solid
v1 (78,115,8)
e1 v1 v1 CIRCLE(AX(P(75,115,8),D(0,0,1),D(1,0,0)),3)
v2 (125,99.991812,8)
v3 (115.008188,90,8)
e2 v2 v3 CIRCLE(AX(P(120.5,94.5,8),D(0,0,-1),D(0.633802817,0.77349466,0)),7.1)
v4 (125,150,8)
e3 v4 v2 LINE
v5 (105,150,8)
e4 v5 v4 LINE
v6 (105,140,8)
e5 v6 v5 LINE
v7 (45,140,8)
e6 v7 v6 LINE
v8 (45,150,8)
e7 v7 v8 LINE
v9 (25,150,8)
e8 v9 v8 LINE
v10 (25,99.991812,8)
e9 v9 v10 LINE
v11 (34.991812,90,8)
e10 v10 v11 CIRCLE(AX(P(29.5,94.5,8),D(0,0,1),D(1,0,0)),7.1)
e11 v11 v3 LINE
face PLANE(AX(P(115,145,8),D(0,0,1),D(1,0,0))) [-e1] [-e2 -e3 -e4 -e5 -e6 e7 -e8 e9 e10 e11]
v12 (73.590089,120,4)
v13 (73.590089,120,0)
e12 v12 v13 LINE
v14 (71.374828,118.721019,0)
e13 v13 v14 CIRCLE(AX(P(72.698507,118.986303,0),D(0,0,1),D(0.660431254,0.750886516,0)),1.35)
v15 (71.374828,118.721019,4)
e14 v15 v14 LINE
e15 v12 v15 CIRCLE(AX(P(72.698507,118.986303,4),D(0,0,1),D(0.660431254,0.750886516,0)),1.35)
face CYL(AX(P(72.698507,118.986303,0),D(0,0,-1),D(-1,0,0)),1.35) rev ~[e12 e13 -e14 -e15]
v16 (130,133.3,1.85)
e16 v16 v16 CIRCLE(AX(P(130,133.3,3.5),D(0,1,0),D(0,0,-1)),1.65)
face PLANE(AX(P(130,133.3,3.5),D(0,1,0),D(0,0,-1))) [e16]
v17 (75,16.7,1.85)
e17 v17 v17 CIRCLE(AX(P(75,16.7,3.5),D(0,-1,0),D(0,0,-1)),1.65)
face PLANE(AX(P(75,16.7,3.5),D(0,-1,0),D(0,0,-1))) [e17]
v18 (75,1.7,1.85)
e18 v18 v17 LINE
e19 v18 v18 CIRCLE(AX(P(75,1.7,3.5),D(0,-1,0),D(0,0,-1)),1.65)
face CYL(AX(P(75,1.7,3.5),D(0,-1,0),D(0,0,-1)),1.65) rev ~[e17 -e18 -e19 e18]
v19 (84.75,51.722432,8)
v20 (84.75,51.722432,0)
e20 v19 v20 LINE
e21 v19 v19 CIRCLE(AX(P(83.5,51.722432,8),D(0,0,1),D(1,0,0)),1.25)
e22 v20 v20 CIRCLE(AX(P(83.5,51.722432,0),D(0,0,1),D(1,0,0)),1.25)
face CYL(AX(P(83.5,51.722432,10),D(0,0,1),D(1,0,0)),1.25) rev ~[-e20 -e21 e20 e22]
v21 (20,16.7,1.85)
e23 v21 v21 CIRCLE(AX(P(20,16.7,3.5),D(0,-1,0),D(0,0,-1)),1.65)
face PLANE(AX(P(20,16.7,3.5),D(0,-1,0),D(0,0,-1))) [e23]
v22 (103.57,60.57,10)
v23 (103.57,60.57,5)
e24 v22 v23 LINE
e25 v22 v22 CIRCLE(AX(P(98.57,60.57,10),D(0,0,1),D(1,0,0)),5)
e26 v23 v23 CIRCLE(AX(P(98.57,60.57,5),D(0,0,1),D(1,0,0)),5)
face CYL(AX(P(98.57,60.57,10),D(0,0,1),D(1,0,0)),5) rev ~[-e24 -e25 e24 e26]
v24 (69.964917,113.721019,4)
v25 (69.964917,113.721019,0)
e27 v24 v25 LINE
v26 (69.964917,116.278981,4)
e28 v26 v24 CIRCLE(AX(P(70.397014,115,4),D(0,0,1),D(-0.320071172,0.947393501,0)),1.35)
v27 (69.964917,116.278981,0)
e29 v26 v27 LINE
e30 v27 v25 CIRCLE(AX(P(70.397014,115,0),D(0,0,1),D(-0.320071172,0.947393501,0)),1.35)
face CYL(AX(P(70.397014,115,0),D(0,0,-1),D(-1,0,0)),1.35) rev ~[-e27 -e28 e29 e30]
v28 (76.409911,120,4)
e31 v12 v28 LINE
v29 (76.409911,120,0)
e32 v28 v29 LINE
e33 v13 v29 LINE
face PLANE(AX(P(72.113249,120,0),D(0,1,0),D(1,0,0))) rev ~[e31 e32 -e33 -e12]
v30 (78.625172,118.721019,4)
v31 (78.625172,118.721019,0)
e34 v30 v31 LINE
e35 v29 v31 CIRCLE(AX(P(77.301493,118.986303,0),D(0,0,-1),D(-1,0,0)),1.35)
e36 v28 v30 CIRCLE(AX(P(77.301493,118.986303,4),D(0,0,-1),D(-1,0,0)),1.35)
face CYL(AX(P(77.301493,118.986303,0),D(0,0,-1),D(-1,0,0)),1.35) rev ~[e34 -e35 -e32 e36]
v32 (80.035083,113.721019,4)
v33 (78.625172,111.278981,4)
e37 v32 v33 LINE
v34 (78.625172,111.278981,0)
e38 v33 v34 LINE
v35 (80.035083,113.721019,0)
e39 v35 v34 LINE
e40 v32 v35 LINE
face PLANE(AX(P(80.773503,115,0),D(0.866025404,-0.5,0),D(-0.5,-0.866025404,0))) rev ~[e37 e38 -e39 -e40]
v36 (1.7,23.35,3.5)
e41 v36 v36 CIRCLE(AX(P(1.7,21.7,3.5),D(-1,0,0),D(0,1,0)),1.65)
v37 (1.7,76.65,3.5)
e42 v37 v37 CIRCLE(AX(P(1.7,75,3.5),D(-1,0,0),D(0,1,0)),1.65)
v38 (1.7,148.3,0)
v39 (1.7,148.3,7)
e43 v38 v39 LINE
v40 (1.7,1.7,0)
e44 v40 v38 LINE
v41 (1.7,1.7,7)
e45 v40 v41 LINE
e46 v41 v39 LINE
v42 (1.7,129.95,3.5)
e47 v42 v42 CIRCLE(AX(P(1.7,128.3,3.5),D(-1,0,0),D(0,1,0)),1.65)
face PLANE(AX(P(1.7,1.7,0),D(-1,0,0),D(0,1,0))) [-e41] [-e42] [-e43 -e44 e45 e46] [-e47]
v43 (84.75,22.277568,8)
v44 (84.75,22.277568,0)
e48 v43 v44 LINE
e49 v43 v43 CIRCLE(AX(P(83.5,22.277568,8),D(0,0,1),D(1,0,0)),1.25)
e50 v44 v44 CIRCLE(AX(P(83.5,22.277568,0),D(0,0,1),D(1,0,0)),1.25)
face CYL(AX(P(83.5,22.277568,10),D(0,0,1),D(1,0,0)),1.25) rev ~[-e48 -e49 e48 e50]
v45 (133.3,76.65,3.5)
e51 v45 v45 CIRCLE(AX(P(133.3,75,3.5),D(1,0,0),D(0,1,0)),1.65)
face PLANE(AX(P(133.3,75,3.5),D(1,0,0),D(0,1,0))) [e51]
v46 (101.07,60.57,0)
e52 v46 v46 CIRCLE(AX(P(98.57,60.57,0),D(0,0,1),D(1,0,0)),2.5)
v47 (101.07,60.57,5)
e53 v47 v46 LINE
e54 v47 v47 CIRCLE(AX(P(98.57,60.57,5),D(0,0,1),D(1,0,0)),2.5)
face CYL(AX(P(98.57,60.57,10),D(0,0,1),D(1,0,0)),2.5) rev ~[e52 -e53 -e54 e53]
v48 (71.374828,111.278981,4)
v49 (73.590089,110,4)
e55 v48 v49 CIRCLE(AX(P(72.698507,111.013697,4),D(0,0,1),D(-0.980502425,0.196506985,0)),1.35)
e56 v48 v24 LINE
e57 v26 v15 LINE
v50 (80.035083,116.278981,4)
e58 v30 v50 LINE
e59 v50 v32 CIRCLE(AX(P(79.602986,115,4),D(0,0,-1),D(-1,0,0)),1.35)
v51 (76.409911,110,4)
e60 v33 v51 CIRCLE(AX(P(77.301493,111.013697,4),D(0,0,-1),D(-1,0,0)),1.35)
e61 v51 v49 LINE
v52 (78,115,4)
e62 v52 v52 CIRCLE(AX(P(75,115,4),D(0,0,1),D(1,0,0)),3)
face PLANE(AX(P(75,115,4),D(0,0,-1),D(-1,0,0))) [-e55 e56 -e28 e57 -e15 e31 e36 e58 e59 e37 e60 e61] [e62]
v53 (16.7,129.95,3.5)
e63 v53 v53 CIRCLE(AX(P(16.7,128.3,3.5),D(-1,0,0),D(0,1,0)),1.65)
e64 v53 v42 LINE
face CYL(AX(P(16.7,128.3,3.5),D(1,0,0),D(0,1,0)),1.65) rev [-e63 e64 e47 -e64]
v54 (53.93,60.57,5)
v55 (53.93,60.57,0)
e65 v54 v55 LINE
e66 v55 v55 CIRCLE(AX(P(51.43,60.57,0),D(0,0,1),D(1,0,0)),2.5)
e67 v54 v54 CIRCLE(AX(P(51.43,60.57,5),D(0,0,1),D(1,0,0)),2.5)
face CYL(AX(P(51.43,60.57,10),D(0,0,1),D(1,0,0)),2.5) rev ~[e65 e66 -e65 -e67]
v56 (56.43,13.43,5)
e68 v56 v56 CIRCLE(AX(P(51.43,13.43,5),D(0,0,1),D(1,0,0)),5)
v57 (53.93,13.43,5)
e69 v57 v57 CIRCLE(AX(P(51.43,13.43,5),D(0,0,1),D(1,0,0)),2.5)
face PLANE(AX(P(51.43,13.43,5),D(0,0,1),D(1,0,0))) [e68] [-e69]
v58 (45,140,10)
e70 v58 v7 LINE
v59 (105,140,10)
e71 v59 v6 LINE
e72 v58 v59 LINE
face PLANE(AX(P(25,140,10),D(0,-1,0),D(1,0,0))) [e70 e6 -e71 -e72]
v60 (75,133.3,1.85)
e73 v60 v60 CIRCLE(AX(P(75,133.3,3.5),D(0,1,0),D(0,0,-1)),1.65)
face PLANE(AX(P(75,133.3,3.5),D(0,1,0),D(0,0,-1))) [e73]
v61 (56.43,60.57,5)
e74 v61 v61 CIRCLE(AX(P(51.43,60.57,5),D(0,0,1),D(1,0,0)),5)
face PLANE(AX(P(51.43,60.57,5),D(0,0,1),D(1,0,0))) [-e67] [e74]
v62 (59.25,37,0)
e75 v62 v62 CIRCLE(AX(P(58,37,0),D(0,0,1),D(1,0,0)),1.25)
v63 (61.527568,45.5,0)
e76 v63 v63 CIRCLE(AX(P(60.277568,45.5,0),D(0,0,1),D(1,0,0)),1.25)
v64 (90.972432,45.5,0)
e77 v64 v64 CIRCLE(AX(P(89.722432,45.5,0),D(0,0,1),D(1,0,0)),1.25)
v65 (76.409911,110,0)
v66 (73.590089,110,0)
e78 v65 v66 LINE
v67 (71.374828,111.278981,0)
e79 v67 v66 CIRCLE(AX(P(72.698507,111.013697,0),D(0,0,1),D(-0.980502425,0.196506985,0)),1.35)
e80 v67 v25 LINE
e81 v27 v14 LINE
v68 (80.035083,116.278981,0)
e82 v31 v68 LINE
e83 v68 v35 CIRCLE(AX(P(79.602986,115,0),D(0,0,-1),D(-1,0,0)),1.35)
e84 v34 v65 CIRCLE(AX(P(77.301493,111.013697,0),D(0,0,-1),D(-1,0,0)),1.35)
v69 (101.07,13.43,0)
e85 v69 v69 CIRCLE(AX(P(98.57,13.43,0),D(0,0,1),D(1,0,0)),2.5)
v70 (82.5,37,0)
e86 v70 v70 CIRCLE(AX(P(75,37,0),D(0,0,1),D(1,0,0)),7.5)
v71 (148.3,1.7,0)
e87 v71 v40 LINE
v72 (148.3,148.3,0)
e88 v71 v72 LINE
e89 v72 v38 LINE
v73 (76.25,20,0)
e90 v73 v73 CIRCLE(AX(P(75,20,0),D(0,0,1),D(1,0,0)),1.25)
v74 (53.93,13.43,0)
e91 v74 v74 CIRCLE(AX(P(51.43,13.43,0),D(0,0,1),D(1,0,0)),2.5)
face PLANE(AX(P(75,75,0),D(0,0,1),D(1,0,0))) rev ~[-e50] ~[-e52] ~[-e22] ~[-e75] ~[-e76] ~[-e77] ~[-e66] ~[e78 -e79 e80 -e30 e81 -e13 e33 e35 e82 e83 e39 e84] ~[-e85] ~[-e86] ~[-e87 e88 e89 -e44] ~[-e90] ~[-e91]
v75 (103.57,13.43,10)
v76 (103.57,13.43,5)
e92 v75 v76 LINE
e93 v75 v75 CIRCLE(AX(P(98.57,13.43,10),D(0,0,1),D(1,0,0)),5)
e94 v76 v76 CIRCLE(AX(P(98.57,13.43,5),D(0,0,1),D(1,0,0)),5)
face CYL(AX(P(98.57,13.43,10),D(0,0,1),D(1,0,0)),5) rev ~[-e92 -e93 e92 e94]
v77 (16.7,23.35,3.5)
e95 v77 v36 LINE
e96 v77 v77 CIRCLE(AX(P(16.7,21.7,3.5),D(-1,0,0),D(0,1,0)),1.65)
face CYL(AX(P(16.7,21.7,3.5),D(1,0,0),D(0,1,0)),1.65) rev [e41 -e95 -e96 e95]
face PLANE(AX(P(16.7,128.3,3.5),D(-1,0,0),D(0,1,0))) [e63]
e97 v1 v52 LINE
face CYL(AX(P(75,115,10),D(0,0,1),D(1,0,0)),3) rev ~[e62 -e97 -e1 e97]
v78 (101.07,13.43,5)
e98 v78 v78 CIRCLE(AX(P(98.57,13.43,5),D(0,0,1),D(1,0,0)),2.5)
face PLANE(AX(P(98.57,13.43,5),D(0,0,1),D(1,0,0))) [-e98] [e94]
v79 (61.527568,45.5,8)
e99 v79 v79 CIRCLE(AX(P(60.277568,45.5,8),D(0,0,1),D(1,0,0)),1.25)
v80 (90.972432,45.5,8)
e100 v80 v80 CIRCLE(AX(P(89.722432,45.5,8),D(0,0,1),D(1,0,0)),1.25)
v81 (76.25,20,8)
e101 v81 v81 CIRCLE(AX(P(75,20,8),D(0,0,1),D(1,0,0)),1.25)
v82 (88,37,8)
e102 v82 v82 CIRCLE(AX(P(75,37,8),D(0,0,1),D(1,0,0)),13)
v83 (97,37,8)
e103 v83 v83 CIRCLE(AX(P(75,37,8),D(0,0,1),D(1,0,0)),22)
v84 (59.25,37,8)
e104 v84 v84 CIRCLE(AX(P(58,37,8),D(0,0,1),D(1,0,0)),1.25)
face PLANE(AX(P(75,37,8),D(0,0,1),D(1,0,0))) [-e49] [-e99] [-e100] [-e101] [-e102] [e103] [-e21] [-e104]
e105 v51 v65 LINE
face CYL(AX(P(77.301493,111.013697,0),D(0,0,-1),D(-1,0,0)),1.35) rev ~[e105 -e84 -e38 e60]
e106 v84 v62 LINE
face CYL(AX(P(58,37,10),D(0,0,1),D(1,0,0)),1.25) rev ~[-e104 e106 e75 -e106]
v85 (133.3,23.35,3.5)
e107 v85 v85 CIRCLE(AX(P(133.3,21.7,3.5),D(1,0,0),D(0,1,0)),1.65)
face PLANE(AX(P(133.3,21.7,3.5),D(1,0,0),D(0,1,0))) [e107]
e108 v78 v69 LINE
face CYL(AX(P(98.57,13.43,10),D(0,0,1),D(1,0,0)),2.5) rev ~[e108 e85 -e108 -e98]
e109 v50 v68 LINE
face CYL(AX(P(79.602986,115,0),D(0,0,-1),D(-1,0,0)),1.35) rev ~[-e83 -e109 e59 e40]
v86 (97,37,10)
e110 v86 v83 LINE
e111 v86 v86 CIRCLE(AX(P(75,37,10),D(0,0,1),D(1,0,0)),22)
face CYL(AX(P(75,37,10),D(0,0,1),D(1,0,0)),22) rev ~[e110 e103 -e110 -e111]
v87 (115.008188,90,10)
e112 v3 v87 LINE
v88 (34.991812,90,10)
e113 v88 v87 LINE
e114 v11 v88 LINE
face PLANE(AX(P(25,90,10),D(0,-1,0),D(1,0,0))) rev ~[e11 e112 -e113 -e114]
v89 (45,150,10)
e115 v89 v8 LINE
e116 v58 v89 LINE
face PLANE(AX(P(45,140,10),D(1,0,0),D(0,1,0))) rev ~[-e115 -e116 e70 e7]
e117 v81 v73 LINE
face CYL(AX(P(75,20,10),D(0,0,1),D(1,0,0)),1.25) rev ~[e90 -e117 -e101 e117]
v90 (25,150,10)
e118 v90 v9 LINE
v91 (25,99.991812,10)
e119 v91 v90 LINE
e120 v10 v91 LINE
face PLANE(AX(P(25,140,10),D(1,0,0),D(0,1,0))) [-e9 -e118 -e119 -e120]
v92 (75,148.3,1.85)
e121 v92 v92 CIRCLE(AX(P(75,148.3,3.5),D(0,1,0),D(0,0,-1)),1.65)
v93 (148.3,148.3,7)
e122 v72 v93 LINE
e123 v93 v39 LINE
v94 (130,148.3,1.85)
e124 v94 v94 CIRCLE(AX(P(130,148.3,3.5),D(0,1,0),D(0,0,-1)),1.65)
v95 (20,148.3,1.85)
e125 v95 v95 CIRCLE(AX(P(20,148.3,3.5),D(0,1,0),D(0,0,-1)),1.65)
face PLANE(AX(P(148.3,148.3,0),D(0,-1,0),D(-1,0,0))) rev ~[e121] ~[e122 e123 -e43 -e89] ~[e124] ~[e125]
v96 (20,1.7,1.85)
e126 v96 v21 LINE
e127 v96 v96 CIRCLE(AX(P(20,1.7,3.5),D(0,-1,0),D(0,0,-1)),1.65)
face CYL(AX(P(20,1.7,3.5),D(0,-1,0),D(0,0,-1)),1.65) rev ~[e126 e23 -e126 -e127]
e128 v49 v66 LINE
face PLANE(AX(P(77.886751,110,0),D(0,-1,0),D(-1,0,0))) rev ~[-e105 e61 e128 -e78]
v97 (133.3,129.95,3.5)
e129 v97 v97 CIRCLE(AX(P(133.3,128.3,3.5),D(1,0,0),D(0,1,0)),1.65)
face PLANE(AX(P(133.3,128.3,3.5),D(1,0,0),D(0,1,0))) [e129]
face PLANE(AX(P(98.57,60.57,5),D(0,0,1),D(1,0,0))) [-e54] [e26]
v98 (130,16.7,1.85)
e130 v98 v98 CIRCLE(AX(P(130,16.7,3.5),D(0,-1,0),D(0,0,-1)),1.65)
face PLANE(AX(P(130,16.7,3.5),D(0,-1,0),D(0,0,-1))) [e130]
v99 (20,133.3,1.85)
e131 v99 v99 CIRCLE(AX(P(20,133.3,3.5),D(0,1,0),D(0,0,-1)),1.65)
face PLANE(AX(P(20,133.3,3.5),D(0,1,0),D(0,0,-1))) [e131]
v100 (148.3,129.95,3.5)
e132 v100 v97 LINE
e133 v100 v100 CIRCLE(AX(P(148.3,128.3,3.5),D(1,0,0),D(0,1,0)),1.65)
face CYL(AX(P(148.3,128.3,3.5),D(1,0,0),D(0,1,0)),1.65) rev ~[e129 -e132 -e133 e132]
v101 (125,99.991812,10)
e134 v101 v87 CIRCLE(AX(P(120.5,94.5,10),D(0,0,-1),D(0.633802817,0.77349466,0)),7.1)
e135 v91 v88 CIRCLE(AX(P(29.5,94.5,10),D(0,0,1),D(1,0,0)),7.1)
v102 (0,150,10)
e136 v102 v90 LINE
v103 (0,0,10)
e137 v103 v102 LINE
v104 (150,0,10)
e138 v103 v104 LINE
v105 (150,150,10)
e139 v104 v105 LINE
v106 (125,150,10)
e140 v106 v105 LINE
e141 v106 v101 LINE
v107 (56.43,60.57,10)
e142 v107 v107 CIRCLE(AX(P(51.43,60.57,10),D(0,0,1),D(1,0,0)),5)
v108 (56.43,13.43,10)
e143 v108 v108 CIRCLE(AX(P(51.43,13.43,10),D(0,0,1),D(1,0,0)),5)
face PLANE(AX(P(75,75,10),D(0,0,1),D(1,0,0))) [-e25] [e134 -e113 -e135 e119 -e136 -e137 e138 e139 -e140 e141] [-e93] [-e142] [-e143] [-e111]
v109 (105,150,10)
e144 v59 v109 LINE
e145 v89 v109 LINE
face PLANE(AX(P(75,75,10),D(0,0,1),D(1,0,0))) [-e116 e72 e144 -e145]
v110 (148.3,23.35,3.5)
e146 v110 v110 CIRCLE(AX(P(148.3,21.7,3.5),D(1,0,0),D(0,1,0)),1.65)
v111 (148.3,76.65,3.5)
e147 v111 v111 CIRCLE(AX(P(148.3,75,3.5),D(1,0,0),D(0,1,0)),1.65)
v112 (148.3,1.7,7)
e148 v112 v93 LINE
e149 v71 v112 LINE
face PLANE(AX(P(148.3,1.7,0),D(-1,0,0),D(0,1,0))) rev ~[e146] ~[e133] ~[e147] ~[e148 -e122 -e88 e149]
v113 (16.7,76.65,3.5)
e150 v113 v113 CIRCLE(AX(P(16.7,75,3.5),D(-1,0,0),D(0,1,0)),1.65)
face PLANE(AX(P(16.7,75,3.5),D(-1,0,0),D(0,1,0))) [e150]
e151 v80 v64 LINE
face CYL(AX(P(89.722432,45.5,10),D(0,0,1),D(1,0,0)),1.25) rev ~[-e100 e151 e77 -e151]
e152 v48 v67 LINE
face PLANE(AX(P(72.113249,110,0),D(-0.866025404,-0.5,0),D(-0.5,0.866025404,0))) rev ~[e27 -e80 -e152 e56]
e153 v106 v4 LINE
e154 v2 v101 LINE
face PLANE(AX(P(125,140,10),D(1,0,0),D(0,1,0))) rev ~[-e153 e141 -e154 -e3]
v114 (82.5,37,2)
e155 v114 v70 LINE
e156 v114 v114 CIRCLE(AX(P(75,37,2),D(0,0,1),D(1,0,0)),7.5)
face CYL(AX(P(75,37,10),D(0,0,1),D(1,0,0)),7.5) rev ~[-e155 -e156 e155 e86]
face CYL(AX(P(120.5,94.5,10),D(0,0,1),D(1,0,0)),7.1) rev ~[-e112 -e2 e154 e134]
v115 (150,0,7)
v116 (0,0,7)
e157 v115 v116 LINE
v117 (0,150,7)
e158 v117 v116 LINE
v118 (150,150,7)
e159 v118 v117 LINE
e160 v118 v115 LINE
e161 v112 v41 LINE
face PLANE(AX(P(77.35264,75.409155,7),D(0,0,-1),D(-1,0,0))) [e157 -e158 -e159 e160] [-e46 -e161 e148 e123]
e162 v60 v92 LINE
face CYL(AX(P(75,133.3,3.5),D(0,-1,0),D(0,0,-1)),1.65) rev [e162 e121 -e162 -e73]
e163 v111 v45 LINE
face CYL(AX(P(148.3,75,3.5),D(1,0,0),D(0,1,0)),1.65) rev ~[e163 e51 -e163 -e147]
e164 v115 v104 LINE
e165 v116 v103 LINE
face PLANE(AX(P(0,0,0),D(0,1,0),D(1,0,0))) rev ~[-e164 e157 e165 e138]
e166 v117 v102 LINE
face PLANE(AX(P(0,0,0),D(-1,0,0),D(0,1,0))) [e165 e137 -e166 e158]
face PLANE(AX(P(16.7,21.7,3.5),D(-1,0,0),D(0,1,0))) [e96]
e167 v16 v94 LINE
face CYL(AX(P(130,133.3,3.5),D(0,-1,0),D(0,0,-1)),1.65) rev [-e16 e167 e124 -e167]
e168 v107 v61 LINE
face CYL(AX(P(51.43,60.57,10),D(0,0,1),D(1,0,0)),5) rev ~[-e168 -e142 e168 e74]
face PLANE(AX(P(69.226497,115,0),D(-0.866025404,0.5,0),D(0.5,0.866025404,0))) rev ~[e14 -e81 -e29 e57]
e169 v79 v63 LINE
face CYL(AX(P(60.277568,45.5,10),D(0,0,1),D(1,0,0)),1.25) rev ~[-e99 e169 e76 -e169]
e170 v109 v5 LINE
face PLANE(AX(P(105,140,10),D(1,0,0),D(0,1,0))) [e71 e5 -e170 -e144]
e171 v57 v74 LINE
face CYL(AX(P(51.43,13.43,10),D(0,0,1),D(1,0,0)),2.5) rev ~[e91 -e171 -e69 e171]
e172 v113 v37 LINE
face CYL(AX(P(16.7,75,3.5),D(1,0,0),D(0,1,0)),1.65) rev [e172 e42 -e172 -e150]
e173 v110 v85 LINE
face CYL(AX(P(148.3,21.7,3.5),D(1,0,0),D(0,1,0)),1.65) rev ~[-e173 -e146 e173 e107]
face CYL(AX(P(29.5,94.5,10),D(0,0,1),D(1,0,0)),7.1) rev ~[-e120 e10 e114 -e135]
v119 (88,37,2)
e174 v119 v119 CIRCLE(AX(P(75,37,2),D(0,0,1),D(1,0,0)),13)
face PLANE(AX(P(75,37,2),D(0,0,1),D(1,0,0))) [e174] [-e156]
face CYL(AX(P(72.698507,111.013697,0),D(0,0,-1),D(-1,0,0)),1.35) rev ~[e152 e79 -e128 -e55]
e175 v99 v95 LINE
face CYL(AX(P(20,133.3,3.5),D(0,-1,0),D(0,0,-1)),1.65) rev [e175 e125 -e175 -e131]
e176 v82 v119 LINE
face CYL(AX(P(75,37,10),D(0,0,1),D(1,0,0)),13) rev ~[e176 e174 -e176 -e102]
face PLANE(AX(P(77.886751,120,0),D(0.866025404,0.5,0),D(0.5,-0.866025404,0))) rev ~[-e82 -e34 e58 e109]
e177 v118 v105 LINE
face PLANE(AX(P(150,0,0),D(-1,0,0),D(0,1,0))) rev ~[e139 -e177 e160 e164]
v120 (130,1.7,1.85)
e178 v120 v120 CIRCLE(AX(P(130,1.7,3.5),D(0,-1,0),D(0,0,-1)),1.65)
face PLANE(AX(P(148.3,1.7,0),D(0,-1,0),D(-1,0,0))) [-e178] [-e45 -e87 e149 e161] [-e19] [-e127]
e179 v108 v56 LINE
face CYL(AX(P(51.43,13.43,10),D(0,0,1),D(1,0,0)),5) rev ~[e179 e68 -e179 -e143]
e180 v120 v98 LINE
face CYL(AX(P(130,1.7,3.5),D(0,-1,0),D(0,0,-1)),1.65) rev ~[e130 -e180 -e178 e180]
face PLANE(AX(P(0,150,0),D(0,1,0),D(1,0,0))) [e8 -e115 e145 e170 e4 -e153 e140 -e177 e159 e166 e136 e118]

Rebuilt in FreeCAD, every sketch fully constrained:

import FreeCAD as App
import Part
import Sketcher
from FreeCAD import Vector
Q = App.Units.Quantity


def add_polygon(sketch, points):
    """Adds a closed chain of lines whose ends are joined by coincident constraints."""
    first, n = sketch.GeometryCount, len(points)
    for a, b in zip(points, points[1:] + points[:1]):
        sketch.addGeometry(Part.LineSegment(App.Vector(*a, 0), App.Vector(*b, 0)), False)
    for i in range(n):
        sketch.addConstraint(Sketcher.Constraint("Coincident", first + i, 2, first + (i + 1) % n, 1))

doc = App.newDocument("Part")
body = doc.addObject("PartDesign::Body", "Body")

sketch1 = doc.addObject("Sketcher::SketchObject", "Sketch")
body.addObject(sketch1)
sketch1.AttachmentSupport = (doc.XY_Plane, [""])
sketch1.MapMode = "FlatFace"
add_polygon(sketch1, [(0, 150), (0, 0), (150, 0), (150, 150)])
sketch1.addConstraint(Sketcher.Constraint("Vertical", 0))
sketch1.addConstraint(Sketcher.Constraint("Horizontal", 1))
sketch1.addConstraint(Sketcher.Constraint("Vertical", 2))
sketch1.addConstraint(Sketcher.Constraint("Horizontal", 3))
sketch1.addConstraint(Sketcher.Constraint("Coincident", 0, 2, -1, 1))
sketch1.addConstraint(Sketcher.Constraint("Equal", 3, 0))
sketch1.addConstraint(Sketcher.Constraint("DistanceX", 1, 1, 1, 2, 150.0))
pad1 = doc.addObject("PartDesign::Pad", "Pad")
body.addObject(pad1)
pad1.Profile = sketch1
pad1.Length = 10

sketch2 = doc.addObject("Sketcher::SketchObject", "Sketch001")
body.addObject(sketch2)
sketch2.AttachmentSupport = (doc.XY_Plane, [""])
sketch2.MapMode = "FlatFace"
sketch2.AttachmentOffset = App.Placement(Vector(0, 0, 10), App.Rotation())
sketch2.addGeometry(Part.Circle(Vector(75, 37, 0), Vector(0, 0, 1), 13), False)
sketch2.addConstraint(Sketcher.Constraint("Diameter", 0, 26.0))
sketch2.addConstraint(Sketcher.Constraint("DistanceX", -1, 1, 0, 3, 75.0))
sketch2.addConstraint(Sketcher.Constraint("DistanceY", -1, 1, 0, 3, 37.0))
pocket1 = doc.addObject("PartDesign::Pocket", "Pocket")
body.addObject(pocket1)
pocket1.Profile = sketch2
pocket1.Length = 8

sketch3 = doc.addObject("Sketcher::SketchObject", "Sketch002")
body.addObject(sketch3)
sketch3.AttachmentSupport = (doc.XY_Plane, [""])
sketch3.MapMode = "FlatFace"
sketch3.AttachmentOffset = App.Placement(Vector(0, 0, 10), App.Rotation())
sketch3.addGeometry(Part.Circle(Vector(75, 37, 0), Vector(0, 0, 1), 8), False)
sketch3.addConstraint(Sketcher.Constraint("Diameter", 0, 15.0))
sketch3.addConstraint(Sketcher.Constraint("DistanceX", -1, 1, 0, 3, 75.0))
sketch3.addConstraint(Sketcher.Constraint("DistanceY", -1, 1, 0, 3, 37.0))
pocket2 = doc.addObject("PartDesign::Pocket", "Pocket001")
body.addObject(pocket2)
pocket2.Profile = sketch3
pocket2.Type = "ThroughAll"

sketch4 = doc.addObject("Sketcher::SketchObject", "Sketch003")
body.addObject(sketch4)
sketch4.AttachmentSupport = (doc.XY_Plane, [""])
sketch4.MapMode = "FlatFace"
sketch4.AttachmentOffset = App.Placement(Vector(0, 0, 10), App.Rotation())
sketch4.addGeometry(Part.Circle(Vector(75, 37, 0), Vector(0, 0, 1), 22), False)
sketch4.addConstraint(Sketcher.Constraint("Diameter", 0, 44.0))
sketch4.addConstraint(Sketcher.Constraint("DistanceX", -1, 1, 0, 3, 75.0))
sketch4.addConstraint(Sketcher.Constraint("DistanceY", -1, 1, 0, 3, 37.0))
pocket3 = doc.addObject("PartDesign::Pocket", "Pocket002")
body.addObject(pocket3)
pocket3.Profile = sketch4
pocket3.Length = 2

sketch5 = doc.addObject("Sketcher::SketchObject", "Sketch004")
body.addObject(sketch5)
sketch5.AttachmentSupport = (doc.XY_Plane, [""])
sketch5.MapMode = "FlatFace"
sketch5.AttachmentOffset = App.Placement(Vector(0, 0, 10), App.Rotation())
sketch5.addGeometry(Part.Circle(Vector(51.4, 13.4, 0), Vector(0, 0, 1), 2.5), False)
sketch5.addGeometry(Part.Circle(Vector(98.6, 13.4, 0), Vector(0, 0, 1), 2.5), False)
sketch5.addGeometry(Part.Circle(Vector(98.6, 60.6, 0), Vector(0, 0, 1), 2.5), False)
sketch5.addGeometry(Part.Circle(Vector(51.4, 60.6, 0), Vector(0, 0, 1), 2.5), False)
sketch5.addConstraint(Sketcher.Constraint("Equal", 0, 1))
sketch5.addConstraint(Sketcher.Constraint("Equal", 1, 2))
sketch5.addConstraint(Sketcher.Constraint("Equal", 2, 3))
sketch5.addConstraint(Sketcher.Constraint("Horizontal", 0, 3, 1, 3))
sketch5.addConstraint(Sketcher.Constraint("Horizontal", 2, 3, 3, 3))
sketch5.addConstraint(Sketcher.Constraint("Vertical", 1, 3, 2, 3))
sketch5.addConstraint(Sketcher.Constraint("Vertical", 0, 3, 3, 3))
sketch5.addConstraint(Sketcher.Constraint("Diameter", 0, 5.0))
sketch5.addConstraint(Sketcher.Constraint("DistanceX", -1, 1, 0, 3, 51.43))
sketch5.addConstraint(Sketcher.Constraint("DistanceY", -1, 1, 0, 3, 13.43))
sketch5.addConstraint(Sketcher.Constraint("DistanceX", -1, 1, 1, 3, 98.57))
sketch5.addConstraint(Sketcher.Constraint("DistanceY", -1, 1, 2, 3, 60.57))
pocket4 = doc.addObject("PartDesign::Pocket", "Pocket003")
body.addObject(pocket4)
pocket4.Profile = sketch5
pocket4.Type = "ThroughAll"

sketch6 = doc.addObject("Sketcher::SketchObject", "Sketch005")
body.addObject(sketch6)
sketch6.AttachmentSupport = (doc.XY_Plane, [""])
sketch6.MapMode = "FlatFace"
add_polygon(sketch6, [(159, 154), (159, -3), (-4, -3), (-4, 154)])
add_polygon(sketch6, [(2, 2), (148, 2), (148, 148), (2, 148)])
sketch6.addConstraint(Sketcher.Constraint("Vertical", 0))
sketch6.addConstraint(Sketcher.Constraint("Horizontal", 1))
sketch6.addConstraint(Sketcher.Constraint("Vertical", 2))
sketch6.addConstraint(Sketcher.Constraint("Horizontal", 3))
sketch6.addConstraint(Sketcher.Constraint("Horizontal", 4))
sketch6.addConstraint(Sketcher.Constraint("Vertical", 5))
sketch6.addConstraint(Sketcher.Constraint("Horizontal", 6))
sketch6.addConstraint(Sketcher.Constraint("Vertical", 7))
sketch6.addConstraint(Sketcher.Constraint("Equal", 6, 5))
sketch6.addConstraint(Sketcher.Constraint("DistanceX", 4, 1, 4, 2, 146.6))
sketch6.addConstraint(Sketcher.Constraint("DistanceX", -1, 1, 4, 2, 148.3))
sketch6.addConstraint(Sketcher.Constraint("DistanceY", -1, 1, 4, 2, 1.7))
sketch6.addConstraint(Sketcher.Constraint("DistanceX", 1, 2, 1, 1, 163.457358))
sketch6.addConstraint(Sketcher.Constraint("DistanceY", 0, 2, 0, 1, 157.320036))
sketch6.addConstraint(Sketcher.Constraint("DistanceX", -1, 1, 0, 2, 159.08132))
sketch6.addConstraint(Sketcher.Constraint("DistanceY", 0, 2, -1, 1, 3.250863))
pocket5 = doc.addObject("PartDesign::Pocket", "Pocket004")
body.addObject(pocket5)
pocket5.Profile = sketch6
pocket5.Length = 7
pocket5.Reversed = True

sketch7 = doc.addObject("Sketcher::SketchObject", "Sketch006")
body.addObject(sketch7)
sketch7.AttachmentSupport = (doc.XZ_Plane, [""])
sketch7.MapMode = "FlatFace"
sketch7.AttachmentOffset = App.Placement(Vector(0, 0, -1.7), App.Rotation())
sketch7.addGeometry(Part.Circle(Vector(20, 3.5, 0), Vector(0, 0, 1), 1.6), False)
sketch7.addGeometry(Part.Circle(Vector(75, 3.5, 0), Vector(0, 0, 1), 1.6), False)
sketch7.addGeometry(Part.Circle(Vector(130, 3.5, 0), Vector(0, 0, 1), 1.6), False)
sketch7.addConstraint(Sketcher.Constraint("Equal", 0, 1))
sketch7.addConstraint(Sketcher.Constraint("Equal", 1, 2))
sketch7.addConstraint(Sketcher.Constraint("Horizontal", 0, 3, 1, 3))
sketch7.addConstraint(Sketcher.Constraint("Horizontal", 1, 3, 2, 3))
sketch7.addConstraint(Sketcher.Constraint("Diameter", 0, 3.3))
sketch7.addConstraint(Sketcher.Constraint("DistanceX", -1, 1, 0, 3, 20.0))
sketch7.addConstraint(Sketcher.Constraint("DistanceX", -1, 1, 1, 3, 75.0))
sketch7.addConstraint(Sketcher.Constraint("DistanceX", -1, 1, 2, 3, 130.0))
sketch7.addConstraint(Sketcher.Constraint("DistanceY", -1, 1, 0, 3, 3.5))
pocket6 = doc.addObject("PartDesign::Pocket", "Pocket005")
body.addObject(pocket6)
pocket6.Profile = sketch7
pocket6.Length = 15

sketch8 = doc.addObject("Sketcher::SketchObject", "Sketch007")
body.addObject(sketch8)
sketch8.AttachmentSupport = (doc.XZ_Plane, [""])
sketch8.MapMode = "FlatFace"
sketch8.AttachmentOffset = App.Placement(Vector(0, 0, -133.3), App.Rotation())
sketch8.addGeometry(Part.Circle(Vector(20, 3.5, 0), Vector(0, 0, 1), 1.6), False)
sketch8.addGeometry(Part.Circle(Vector(75, 3.5, 0), Vector(0, 0, 1), 1.6), False)
sketch8.addGeometry(Part.Circle(Vector(130, 3.5, 0), Vector(0, 0, 1), 1.6), False)
sketch8.addConstraint(Sketcher.Constraint("Equal", 0, 1))
sketch8.addConstraint(Sketcher.Constraint("Equal", 1, 2))
sketch8.addConstraint(Sketcher.Constraint("Horizontal", 0, 3, 1, 3))
sketch8.addConstraint(Sketcher.Constraint("Horizontal", 1, 3, 2, 3))
sketch8.addConstraint(Sketcher.Constraint("Diameter", 0, 3.3))
sketch8.addConstraint(Sketcher.Constraint("DistanceX", -1, 1, 0, 3, 20.0))
sketch8.addConstraint(Sketcher.Constraint("DistanceX", -1, 1, 1, 3, 75.0))
sketch8.addConstraint(Sketcher.Constraint("DistanceX", -1, 1, 2, 3, 130.0))
sketch8.addConstraint(Sketcher.Constraint("DistanceY", -1, 1, 0, 3, 3.5))
pocket7 = doc.addObject("PartDesign::Pocket", "Pocket006")
body.addObject(pocket7)
pocket7.Profile = sketch8
pocket7.Length = 15

sketch9 = doc.addObject("Sketcher::SketchObject", "Sketch008")
body.addObject(sketch9)
sketch9.AttachmentSupport = (doc.YZ_Plane, [""])
sketch9.MapMode = "FlatFace"
sketch9.AttachmentOffset = App.Placement(Vector(0, 0, 148.3), App.Rotation())
sketch9.addGeometry(Part.Circle(Vector(21.7, 3.5, 0), Vector(0, 0, 1), 1.6), False)
sketch9.addGeometry(Part.Circle(Vector(128.3, 3.5, 0), Vector(0, 0, 1), 1.6), False)
sketch9.addGeometry(Part.Circle(Vector(75, 3.5, 0), Vector(0, 0, 1), 1.6), False)
sketch9.addConstraint(Sketcher.Constraint("Equal", 0, 1))
sketch9.addConstraint(Sketcher.Constraint("Equal", 1, 2))
sketch9.addConstraint(Sketcher.Constraint("Horizontal", 0, 3, 1, 3))
sketch9.addConstraint(Sketcher.Constraint("Horizontal", 1, 3, 2, 3))
sketch9.addConstraint(Sketcher.Constraint("Diameter", 0, 3.3))
sketch9.addConstraint(Sketcher.Constraint("DistanceX", -1, 1, 2, 3, 75.0))
sketch9.addConstraint(Sketcher.Constraint("DistanceX", -1, 1, 0, 3, 21.7))
sketch9.addConstraint(Sketcher.Constraint("DistanceY", -1, 1, 0, 3, 3.5))
sketch9.addConstraint(Sketcher.Constraint("DistanceX", -1, 1, 1, 3, 128.3))
pocket8 = doc.addObject("PartDesign::Pocket", "Pocket007")
body.addObject(pocket8)
pocket8.Profile = sketch9
pocket8.Length = 15

sketch10 = doc.addObject("Sketcher::SketchObject", "Sketch009")
body.addObject(sketch10)
sketch10.AttachmentSupport = (doc.YZ_Plane, [""])
sketch10.MapMode = "FlatFace"
sketch10.AttachmentOffset = App.Placement(Vector(0, 0, 16.7), App.Rotation())
sketch10.addGeometry(Part.Circle(Vector(128.3, 3.5, 0), Vector(0, 0, 1), 1.6), False)
sketch10.addGeometry(Part.Circle(Vector(75, 3.5, 0), Vector(0, 0, 1), 1.6), False)
sketch10.addGeometry(Part.Circle(Vector(21.7, 3.5, 0), Vector(0, 0, 1), 1.6), False)
sketch10.addConstraint(Sketcher.Constraint("Equal", 0, 1))
sketch10.addConstraint(Sketcher.Constraint("Equal", 1, 2))
sketch10.addConstraint(Sketcher.Constraint("Horizontal", 0, 3, 1, 3))
sketch10.addConstraint(Sketcher.Constraint("Horizontal", 1, 3, 2, 3))
sketch10.addConstraint(Sketcher.Constraint("Diameter", 0, 3.3))
sketch10.addConstraint(Sketcher.Constraint("DistanceX", -1, 1, 1, 3, 75.0))
sketch10.addConstraint(Sketcher.Constraint("DistanceX", -1, 1, 0, 3, 128.3))
sketch10.addConstraint(Sketcher.Constraint("DistanceY", -1, 1, 0, 3, 3.5))
sketch10.addConstraint(Sketcher.Constraint("DistanceX", -1, 1, 2, 3, 21.7))
pocket9 = doc.addObject("PartDesign::Pocket", "Pocket008")
body.addObject(pocket9)
pocket9.Profile = sketch10
pocket9.Length = 15

sketch11 = doc.addObject("Sketcher::SketchObject", "Sketch010")
body.addObject(sketch11)
sketch11.AttachmentSupport = (doc.XY_Plane, [""])
sketch11.MapMode = "FlatFace"
sketch11.AttachmentOffset = App.Placement(Vector(0, 0, 10), App.Rotation())
sketch11.addGeometry(Part.Circle(Vector(75, 20, 0), Vector(0, 0, 1), 1.2), False)
sketch11.addGeometry(Part.Circle(Vector(60.3, 45.5, 0), Vector(0, 0, 1), 1.2), False)
sketch11.addGeometry(Part.Circle(Vector(89.7, 45.5, 0), Vector(0, 0, 1), 1.2), False)
sketch11.addGeometry(Part.Circle(Vector(58, 37, 0), Vector(0, 0, 1), 1.2), False)
sketch11.addGeometry(Part.Circle(Vector(83.5, 22.3, 0), Vector(0, 0, 1), 1.2), False)
sketch11.addGeometry(Part.Circle(Vector(83.5, 51.7, 0), Vector(0, 0, 1), 1.2), False)
sketch11.addConstraint(Sketcher.Constraint("Equal", 0, 1))
sketch11.addConstraint(Sketcher.Constraint("Equal", 1, 2))
sketch11.addConstraint(Sketcher.Constraint("Equal", 2, 3))
sketch11.addConstraint(Sketcher.Constraint("Equal", 3, 4))
sketch11.addConstraint(Sketcher.Constraint("Equal", 4, 5))
sketch11.addConstraint(Sketcher.Constraint("Horizontal", 1, 3, 2, 3))
sketch11.addConstraint(Sketcher.Constraint("Vertical", 4, 3, 5, 3))
sketch11.addConstraint(Sketcher.Constraint("Diameter", 0, 2.5))
sketch11.addConstraint(Sketcher.Constraint("DistanceX", -1, 1, 0, 3, 75.0))
sketch11.addConstraint(Sketcher.Constraint("DistanceY", -1, 1, 0, 3, 20.0))
sketch11.addConstraint(Sketcher.Constraint("DistanceX", -1, 1, 3, 3, 58.0))
sketch11.addConstraint(Sketcher.Constraint("DistanceY", -1, 1, 3, 3, 37.0))
sketch11.addConstraint(Sketcher.Constraint("DistanceY", -1, 1, 1, 3, 45.5))
sketch11.addConstraint(Sketcher.Constraint("DistanceX", -1, 1, 4, 3, 83.5))
sketch11.addConstraint(Sketcher.Constraint("DistanceX", -1, 1, 1, 3, 60.277568))
sketch11.addConstraint(Sketcher.Constraint("DistanceX", -1, 1, 2, 3, 89.722432))
sketch11.addConstraint(Sketcher.Constraint("DistanceY", -1, 1, 4, 3, 22.277568))
sketch11.addConstraint(Sketcher.Constraint("DistanceY", -1, 1, 5, 3, 51.722432))
pocket10 = doc.addObject("PartDesign::Pocket", "Pocket009")
body.addObject(pocket10)
pocket10.Profile = sketch11
pocket10.Type = "ThroughAll"

sketch12 = doc.addObject("Sketcher::SketchObject", "Sketch011")
body.addObject(sketch12)
sketch12.AttachmentSupport = (doc.XY_Plane, [""])
sketch12.MapMode = "FlatFace"
sketch12.AttachmentOffset = App.Placement(Vector(0, 0, 10), App.Rotation())
sketch12.addGeometry(Part.Circle(Vector(51, 13, 0), Vector(0, 0, 1), 5), False)
sketch12.addGeometry(Part.Circle(Vector(99, 13, 0), Vector(0, 0, 1), 5), False)
sketch12.addGeometry(Part.Circle(Vector(99, 61, 0), Vector(0, 0, 1), 5), False)
sketch12.addGeometry(Part.Circle(Vector(51, 61, 0), Vector(0, 0, 1), 5), False)
sketch12.addConstraint(Sketcher.Constraint("Equal", 0, 1))
sketch12.addConstraint(Sketcher.Constraint("Equal", 1, 2))
sketch12.addConstraint(Sketcher.Constraint("Equal", 2, 3))
sketch12.addConstraint(Sketcher.Constraint("Horizontal", 0, 3, 1, 3))
sketch12.addConstraint(Sketcher.Constraint("Horizontal", 2, 3, 3, 3))
sketch12.addConstraint(Sketcher.Constraint("Vertical", 1, 3, 2, 3))
sketch12.addConstraint(Sketcher.Constraint("Vertical", 0, 3, 3, 3))
sketch12.addConstraint(Sketcher.Constraint("Diameter", 0, 10.0))
sketch12.addConstraint(Sketcher.Constraint("DistanceX", -1, 1, 0, 3, 51.43))
sketch12.addConstraint(Sketcher.Constraint("DistanceY", -1, 1, 0, 3, 13.43))
sketch12.addConstraint(Sketcher.Constraint("DistanceX", -1, 1, 1, 3, 98.57))
sketch12.addConstraint(Sketcher.Constraint("DistanceY", -1, 1, 2, 3, 60.57))
pocket11 = doc.addObject("PartDesign::Pocket", "Pocket010")
body.addObject(pocket11)
pocket11.Profile = sketch12
pocket11.Length = 5

sketch13 = doc.addObject("Sketcher::SketchObject", "Sketch012")
body.addObject(sketch13)
sketch13.AttachmentSupport = (doc.XY_Plane, [""])
sketch13.MapMode = "FlatFace"
sketch13.AttachmentOffset = App.Placement(Vector(0, 0, 10), App.Rotation())
add_polygon(sketch13, [(25, 140), (25, 90), (125, 90), (125, 140)])
sketch13.addConstraint(Sketcher.Constraint("Vertical", 0))
sketch13.addConstraint(Sketcher.Constraint("Horizontal", 1))
sketch13.addConstraint(Sketcher.Constraint("Vertical", 2))
sketch13.addConstraint(Sketcher.Constraint("Horizontal", 3))
sketch13.addConstraint(Sketcher.Constraint("DistanceX", 1, 1, 1, 2, 100.0))
sketch13.addConstraint(Sketcher.Constraint("DistanceY", 0, 2, 0, 1, 50.0))
sketch13.addConstraint(Sketcher.Constraint("DistanceX", -1, 1, 0, 2, 25.0))
sketch13.addConstraint(Sketcher.Constraint("DistanceY", -1, 1, 0, 2, 90.0))
pocket12 = doc.addObject("PartDesign::Pocket", "Pocket011")
body.addObject(pocket12)
pocket12.Profile = sketch13
pocket12.Length = 2

sketch14 = doc.addObject("Sketcher::SketchObject", "Sketch013")
body.addObject(sketch14)
sketch14.AttachmentSupport = (doc.XY_Plane, [""])
sketch14.MapMode = "FlatFace"
sketch14.AttachmentOffset = App.Placement(Vector(0, 0, 10), App.Rotation())
sketch14.addGeometry(Part.Circle(Vector(30, 94, 0), Vector(0, 0, 1), 7), False)
sketch14.addGeometry(Part.Circle(Vector(120, 94, 0), Vector(0, 0, 1), 7), False)
sketch14.addConstraint(Sketcher.Constraint("Equal", 0, 1))
sketch14.addConstraint(Sketcher.Constraint("Horizontal", 0, 3, 1, 3))
sketch14.addConstraint(Sketcher.Constraint("Diameter", 0, 14.2))
sketch14.addConstraint(Sketcher.Constraint("DistanceX", 0, 3, 1, 3, 91.0))
sketch14.addConstraint(Sketcher.Constraint("DistanceX", -1, 1, 0, 3, 29.5))
sketch14.addConstraint(Sketcher.Constraint("DistanceY", -1, 1, 0, 3, 94.5))
pocket13 = doc.addObject("PartDesign::Pocket", "Pocket012")
body.addObject(pocket13)
pocket13.Profile = sketch14
pocket13.Length = 2

sketch15 = doc.addObject("Sketcher::SketchObject", "Sketch014")
body.addObject(sketch15)
sketch15.AttachmentSupport = (doc.XY_Plane, [""])
sketch15.MapMode = "FlatFace"
sketch15.AttachmentOffset = App.Placement(Vector(0, 0, 10), App.Rotation())
sketch15.addGeometry(Part.Circle(Vector(75, 115, 0), Vector(0, 0, 1), 3), False)
sketch15.addConstraint(Sketcher.Constraint("Diameter", 0, 6.0))
sketch15.addConstraint(Sketcher.Constraint("DistanceX", -1, 1, 0, 3, 75.0))
sketch15.addConstraint(Sketcher.Constraint("DistanceY", -1, 1, 0, 3, 115.0))
pocket14 = doc.addObject("PartDesign::Pocket", "Pocket013")
body.addObject(pocket14)
pocket14.Profile = sketch15
pocket14.Type = "ThroughAll"

sketch16 = doc.addObject("Sketcher::SketchObject", "Sketch015")
body.addObject(sketch16)
sketch16.AttachmentSupport = (doc.XY_Plane, [""])
sketch16.MapMode = "FlatFace"
sketch16.AttachmentOffset = App.Placement(Vector(0, 0, 10), App.Rotation())
add_polygon(sketch16, [(25, 150), (25, 140), (45, 140), (45, 150)])
add_polygon(sketch16, [(105, 150), (105, 140), (125, 140), (125, 150)])
sketch16.addConstraint(Sketcher.Constraint("Vertical", 0))
sketch16.addConstraint(Sketcher.Constraint("Horizontal", 1))
sketch16.addConstraint(Sketcher.Constraint("Vertical", 2))
sketch16.addConstraint(Sketcher.Constraint("Horizontal", 3))
sketch16.addConstraint(Sketcher.Constraint("Vertical", 4))
sketch16.addConstraint(Sketcher.Constraint("Horizontal", 5))
sketch16.addConstraint(Sketcher.Constraint("Vertical", 6))
sketch16.addConstraint(Sketcher.Constraint("Horizontal", 7))
sketch16.addConstraint(Sketcher.Constraint("Horizontal", 1, 2, 4, 2))
sketch16.addConstraint(Sketcher.Constraint("Horizontal", 3, 2, 6, 2))
sketch16.addConstraint(Sketcher.Constraint("Equal", 3, 5))
sketch16.addConstraint(Sketcher.Constraint("DistanceX", 1, 1, 1, 2, 20.0))
sketch16.addConstraint(Sketcher.Constraint("DistanceY", 0, 2, 0, 1, 10.0))
sketch16.addConstraint(Sketcher.Constraint("DistanceX", -1, 1, 0, 2, 25.0))
sketch16.addConstraint(Sketcher.Constraint("DistanceY", -1, 1, 0, 2, 140.0))
sketch16.addConstraint(Sketcher.Constraint("DistanceX", -1, 1, 4, 2, 105.0))
pocket15 = doc.addObject("PartDesign::Pocket", "Pocket014")
body.addObject(pocket15)
pocket15.Profile = sketch16
pocket15.Length = 2

sketch17 = doc.addObject("Sketcher::SketchObject", "Sketch016")
body.addObject(sketch17)
sketch17.AttachmentSupport = (doc.XY_Plane, [""])
sketch17.MapMode = "FlatFace"
add_polygon(sketch17, [(69, 115), (72, 120), (78, 120), (81, 115), (78, 110), (72, 110)])
sketch17.addConstraint(Sketcher.Constraint("Horizontal", 1))
sketch17.addConstraint(Sketcher.Constraint("Horizontal", 4))
sketch17.addConstraint(Sketcher.Constraint("Parallel", 0, 3))
sketch17.addConstraint(Sketcher.Constraint("Parallel", 2, 5))
sketch17.addConstraint(Sketcher.Constraint("Horizontal", 2, 2, 5, 2))
sketch17.addConstraint(Sketcher.Constraint("Vertical", 1, 2, 3, 2))
sketch17.addConstraint(Sketcher.Constraint("Vertical", 0, 2, 4, 2))
sketch17.addConstraint(Sketcher.Constraint("Angle", 0, Q("60 deg")))
sketch17.addConstraint(Sketcher.Constraint("DistanceY", -1, 1, 0, 2, 120.0))
sketch17.addConstraint(Sketcher.Constraint("DistanceY", -1, 1, 2, 2, 115.0))
sketch17.addConstraint(Sketcher.Constraint("DistanceX", 1, 1, 1, 2, 5.773503))
sketch17.addConstraint(Sketcher.Constraint("DistanceX", -1, 1, 0, 2, 72.113249))
pocket16 = doc.addObject("PartDesign::Pocket", "Pocket015")
body.addObject(pocket16)
pocket16.Profile = sketch17
pocket16.Length = 4
pocket16.Reversed = True

sketch18 = doc.addObject("Sketcher::SketchObject", "Sketch017")
body.addObject(sketch18)
sketch18.AttachmentSupport = (doc.XY_Plane, [""])
sketch18.MapMode = "FlatFace"
sketch18.addGeometry(Part.Circle(Vector(70.4, 115, 0), Vector(0, 0, 1), 1.4), False)
sketch18.addGeometry(Part.Circle(Vector(72.7, 111, 0), Vector(0, 0, 1), 1.4), False)
sketch18.addGeometry(Part.Circle(Vector(77.3, 111, 0), Vector(0, 0, 1), 1.4), False)
sketch18.addGeometry(Part.Circle(Vector(79.6, 115, 0), Vector(0, 0, 1), 1.4), False)
sketch18.addGeometry(Part.Circle(Vector(77.3, 119, 0), Vector(0, 0, 1), 1.4), False)
sketch18.addGeometry(Part.Circle(Vector(72.7, 119, 0), Vector(0, 0, 1), 1.4), False)
sketch18.addConstraint(Sketcher.Constraint("Equal", 0, 1))
sketch18.addConstraint(Sketcher.Constraint("Equal", 1, 2))
sketch18.addConstraint(Sketcher.Constraint("Equal", 2, 3))
sketch18.addConstraint(Sketcher.Constraint("Equal", 3, 4))
sketch18.addConstraint(Sketcher.Constraint("Equal", 4, 5))
sketch18.addConstraint(Sketcher.Constraint("Horizontal", 1, 3, 2, 3))
sketch18.addConstraint(Sketcher.Constraint("Horizontal", 0, 3, 3, 3))
sketch18.addConstraint(Sketcher.Constraint("Horizontal", 4, 3, 5, 3))
sketch18.addConstraint(Sketcher.Constraint("Vertical", 2, 3, 4, 3))
sketch18.addConstraint(Sketcher.Constraint("Vertical", 1, 3, 5, 3))
sketch18.addConstraint(Sketcher.Constraint("Diameter", 0, 2.7))
sketch18.addConstraint(Sketcher.Constraint("DistanceY", -1, 1, 0, 3, 115.0))
sketch18.addConstraint(Sketcher.Constraint("DistanceX", 0, 3, 2, 3, 6.90448))
sketch18.addConstraint(Sketcher.Constraint("DistanceX", 1, 3, 3, 3, 6.90448))
sketch18.addConstraint(Sketcher.Constraint("DistanceX", -1, 1, 0, 3, 70.397014))
sketch18.addConstraint(Sketcher.Constraint("DistanceX", -1, 1, 1, 3, 72.698507))
sketch18.addConstraint(Sketcher.Constraint("DistanceY", -1, 1, 1, 3, 111.013697))
sketch18.addConstraint(Sketcher.Constraint("DistanceY", -1, 1, 4, 3, 118.986303))
pocket17 = doc.addObject("PartDesign::Pocket", "Pocket016")
body.addObject(pocket17)
pocket17.Profile = sketch18
pocket17.Length = 4
pocket17.Reversed = True

doc.recompute()
